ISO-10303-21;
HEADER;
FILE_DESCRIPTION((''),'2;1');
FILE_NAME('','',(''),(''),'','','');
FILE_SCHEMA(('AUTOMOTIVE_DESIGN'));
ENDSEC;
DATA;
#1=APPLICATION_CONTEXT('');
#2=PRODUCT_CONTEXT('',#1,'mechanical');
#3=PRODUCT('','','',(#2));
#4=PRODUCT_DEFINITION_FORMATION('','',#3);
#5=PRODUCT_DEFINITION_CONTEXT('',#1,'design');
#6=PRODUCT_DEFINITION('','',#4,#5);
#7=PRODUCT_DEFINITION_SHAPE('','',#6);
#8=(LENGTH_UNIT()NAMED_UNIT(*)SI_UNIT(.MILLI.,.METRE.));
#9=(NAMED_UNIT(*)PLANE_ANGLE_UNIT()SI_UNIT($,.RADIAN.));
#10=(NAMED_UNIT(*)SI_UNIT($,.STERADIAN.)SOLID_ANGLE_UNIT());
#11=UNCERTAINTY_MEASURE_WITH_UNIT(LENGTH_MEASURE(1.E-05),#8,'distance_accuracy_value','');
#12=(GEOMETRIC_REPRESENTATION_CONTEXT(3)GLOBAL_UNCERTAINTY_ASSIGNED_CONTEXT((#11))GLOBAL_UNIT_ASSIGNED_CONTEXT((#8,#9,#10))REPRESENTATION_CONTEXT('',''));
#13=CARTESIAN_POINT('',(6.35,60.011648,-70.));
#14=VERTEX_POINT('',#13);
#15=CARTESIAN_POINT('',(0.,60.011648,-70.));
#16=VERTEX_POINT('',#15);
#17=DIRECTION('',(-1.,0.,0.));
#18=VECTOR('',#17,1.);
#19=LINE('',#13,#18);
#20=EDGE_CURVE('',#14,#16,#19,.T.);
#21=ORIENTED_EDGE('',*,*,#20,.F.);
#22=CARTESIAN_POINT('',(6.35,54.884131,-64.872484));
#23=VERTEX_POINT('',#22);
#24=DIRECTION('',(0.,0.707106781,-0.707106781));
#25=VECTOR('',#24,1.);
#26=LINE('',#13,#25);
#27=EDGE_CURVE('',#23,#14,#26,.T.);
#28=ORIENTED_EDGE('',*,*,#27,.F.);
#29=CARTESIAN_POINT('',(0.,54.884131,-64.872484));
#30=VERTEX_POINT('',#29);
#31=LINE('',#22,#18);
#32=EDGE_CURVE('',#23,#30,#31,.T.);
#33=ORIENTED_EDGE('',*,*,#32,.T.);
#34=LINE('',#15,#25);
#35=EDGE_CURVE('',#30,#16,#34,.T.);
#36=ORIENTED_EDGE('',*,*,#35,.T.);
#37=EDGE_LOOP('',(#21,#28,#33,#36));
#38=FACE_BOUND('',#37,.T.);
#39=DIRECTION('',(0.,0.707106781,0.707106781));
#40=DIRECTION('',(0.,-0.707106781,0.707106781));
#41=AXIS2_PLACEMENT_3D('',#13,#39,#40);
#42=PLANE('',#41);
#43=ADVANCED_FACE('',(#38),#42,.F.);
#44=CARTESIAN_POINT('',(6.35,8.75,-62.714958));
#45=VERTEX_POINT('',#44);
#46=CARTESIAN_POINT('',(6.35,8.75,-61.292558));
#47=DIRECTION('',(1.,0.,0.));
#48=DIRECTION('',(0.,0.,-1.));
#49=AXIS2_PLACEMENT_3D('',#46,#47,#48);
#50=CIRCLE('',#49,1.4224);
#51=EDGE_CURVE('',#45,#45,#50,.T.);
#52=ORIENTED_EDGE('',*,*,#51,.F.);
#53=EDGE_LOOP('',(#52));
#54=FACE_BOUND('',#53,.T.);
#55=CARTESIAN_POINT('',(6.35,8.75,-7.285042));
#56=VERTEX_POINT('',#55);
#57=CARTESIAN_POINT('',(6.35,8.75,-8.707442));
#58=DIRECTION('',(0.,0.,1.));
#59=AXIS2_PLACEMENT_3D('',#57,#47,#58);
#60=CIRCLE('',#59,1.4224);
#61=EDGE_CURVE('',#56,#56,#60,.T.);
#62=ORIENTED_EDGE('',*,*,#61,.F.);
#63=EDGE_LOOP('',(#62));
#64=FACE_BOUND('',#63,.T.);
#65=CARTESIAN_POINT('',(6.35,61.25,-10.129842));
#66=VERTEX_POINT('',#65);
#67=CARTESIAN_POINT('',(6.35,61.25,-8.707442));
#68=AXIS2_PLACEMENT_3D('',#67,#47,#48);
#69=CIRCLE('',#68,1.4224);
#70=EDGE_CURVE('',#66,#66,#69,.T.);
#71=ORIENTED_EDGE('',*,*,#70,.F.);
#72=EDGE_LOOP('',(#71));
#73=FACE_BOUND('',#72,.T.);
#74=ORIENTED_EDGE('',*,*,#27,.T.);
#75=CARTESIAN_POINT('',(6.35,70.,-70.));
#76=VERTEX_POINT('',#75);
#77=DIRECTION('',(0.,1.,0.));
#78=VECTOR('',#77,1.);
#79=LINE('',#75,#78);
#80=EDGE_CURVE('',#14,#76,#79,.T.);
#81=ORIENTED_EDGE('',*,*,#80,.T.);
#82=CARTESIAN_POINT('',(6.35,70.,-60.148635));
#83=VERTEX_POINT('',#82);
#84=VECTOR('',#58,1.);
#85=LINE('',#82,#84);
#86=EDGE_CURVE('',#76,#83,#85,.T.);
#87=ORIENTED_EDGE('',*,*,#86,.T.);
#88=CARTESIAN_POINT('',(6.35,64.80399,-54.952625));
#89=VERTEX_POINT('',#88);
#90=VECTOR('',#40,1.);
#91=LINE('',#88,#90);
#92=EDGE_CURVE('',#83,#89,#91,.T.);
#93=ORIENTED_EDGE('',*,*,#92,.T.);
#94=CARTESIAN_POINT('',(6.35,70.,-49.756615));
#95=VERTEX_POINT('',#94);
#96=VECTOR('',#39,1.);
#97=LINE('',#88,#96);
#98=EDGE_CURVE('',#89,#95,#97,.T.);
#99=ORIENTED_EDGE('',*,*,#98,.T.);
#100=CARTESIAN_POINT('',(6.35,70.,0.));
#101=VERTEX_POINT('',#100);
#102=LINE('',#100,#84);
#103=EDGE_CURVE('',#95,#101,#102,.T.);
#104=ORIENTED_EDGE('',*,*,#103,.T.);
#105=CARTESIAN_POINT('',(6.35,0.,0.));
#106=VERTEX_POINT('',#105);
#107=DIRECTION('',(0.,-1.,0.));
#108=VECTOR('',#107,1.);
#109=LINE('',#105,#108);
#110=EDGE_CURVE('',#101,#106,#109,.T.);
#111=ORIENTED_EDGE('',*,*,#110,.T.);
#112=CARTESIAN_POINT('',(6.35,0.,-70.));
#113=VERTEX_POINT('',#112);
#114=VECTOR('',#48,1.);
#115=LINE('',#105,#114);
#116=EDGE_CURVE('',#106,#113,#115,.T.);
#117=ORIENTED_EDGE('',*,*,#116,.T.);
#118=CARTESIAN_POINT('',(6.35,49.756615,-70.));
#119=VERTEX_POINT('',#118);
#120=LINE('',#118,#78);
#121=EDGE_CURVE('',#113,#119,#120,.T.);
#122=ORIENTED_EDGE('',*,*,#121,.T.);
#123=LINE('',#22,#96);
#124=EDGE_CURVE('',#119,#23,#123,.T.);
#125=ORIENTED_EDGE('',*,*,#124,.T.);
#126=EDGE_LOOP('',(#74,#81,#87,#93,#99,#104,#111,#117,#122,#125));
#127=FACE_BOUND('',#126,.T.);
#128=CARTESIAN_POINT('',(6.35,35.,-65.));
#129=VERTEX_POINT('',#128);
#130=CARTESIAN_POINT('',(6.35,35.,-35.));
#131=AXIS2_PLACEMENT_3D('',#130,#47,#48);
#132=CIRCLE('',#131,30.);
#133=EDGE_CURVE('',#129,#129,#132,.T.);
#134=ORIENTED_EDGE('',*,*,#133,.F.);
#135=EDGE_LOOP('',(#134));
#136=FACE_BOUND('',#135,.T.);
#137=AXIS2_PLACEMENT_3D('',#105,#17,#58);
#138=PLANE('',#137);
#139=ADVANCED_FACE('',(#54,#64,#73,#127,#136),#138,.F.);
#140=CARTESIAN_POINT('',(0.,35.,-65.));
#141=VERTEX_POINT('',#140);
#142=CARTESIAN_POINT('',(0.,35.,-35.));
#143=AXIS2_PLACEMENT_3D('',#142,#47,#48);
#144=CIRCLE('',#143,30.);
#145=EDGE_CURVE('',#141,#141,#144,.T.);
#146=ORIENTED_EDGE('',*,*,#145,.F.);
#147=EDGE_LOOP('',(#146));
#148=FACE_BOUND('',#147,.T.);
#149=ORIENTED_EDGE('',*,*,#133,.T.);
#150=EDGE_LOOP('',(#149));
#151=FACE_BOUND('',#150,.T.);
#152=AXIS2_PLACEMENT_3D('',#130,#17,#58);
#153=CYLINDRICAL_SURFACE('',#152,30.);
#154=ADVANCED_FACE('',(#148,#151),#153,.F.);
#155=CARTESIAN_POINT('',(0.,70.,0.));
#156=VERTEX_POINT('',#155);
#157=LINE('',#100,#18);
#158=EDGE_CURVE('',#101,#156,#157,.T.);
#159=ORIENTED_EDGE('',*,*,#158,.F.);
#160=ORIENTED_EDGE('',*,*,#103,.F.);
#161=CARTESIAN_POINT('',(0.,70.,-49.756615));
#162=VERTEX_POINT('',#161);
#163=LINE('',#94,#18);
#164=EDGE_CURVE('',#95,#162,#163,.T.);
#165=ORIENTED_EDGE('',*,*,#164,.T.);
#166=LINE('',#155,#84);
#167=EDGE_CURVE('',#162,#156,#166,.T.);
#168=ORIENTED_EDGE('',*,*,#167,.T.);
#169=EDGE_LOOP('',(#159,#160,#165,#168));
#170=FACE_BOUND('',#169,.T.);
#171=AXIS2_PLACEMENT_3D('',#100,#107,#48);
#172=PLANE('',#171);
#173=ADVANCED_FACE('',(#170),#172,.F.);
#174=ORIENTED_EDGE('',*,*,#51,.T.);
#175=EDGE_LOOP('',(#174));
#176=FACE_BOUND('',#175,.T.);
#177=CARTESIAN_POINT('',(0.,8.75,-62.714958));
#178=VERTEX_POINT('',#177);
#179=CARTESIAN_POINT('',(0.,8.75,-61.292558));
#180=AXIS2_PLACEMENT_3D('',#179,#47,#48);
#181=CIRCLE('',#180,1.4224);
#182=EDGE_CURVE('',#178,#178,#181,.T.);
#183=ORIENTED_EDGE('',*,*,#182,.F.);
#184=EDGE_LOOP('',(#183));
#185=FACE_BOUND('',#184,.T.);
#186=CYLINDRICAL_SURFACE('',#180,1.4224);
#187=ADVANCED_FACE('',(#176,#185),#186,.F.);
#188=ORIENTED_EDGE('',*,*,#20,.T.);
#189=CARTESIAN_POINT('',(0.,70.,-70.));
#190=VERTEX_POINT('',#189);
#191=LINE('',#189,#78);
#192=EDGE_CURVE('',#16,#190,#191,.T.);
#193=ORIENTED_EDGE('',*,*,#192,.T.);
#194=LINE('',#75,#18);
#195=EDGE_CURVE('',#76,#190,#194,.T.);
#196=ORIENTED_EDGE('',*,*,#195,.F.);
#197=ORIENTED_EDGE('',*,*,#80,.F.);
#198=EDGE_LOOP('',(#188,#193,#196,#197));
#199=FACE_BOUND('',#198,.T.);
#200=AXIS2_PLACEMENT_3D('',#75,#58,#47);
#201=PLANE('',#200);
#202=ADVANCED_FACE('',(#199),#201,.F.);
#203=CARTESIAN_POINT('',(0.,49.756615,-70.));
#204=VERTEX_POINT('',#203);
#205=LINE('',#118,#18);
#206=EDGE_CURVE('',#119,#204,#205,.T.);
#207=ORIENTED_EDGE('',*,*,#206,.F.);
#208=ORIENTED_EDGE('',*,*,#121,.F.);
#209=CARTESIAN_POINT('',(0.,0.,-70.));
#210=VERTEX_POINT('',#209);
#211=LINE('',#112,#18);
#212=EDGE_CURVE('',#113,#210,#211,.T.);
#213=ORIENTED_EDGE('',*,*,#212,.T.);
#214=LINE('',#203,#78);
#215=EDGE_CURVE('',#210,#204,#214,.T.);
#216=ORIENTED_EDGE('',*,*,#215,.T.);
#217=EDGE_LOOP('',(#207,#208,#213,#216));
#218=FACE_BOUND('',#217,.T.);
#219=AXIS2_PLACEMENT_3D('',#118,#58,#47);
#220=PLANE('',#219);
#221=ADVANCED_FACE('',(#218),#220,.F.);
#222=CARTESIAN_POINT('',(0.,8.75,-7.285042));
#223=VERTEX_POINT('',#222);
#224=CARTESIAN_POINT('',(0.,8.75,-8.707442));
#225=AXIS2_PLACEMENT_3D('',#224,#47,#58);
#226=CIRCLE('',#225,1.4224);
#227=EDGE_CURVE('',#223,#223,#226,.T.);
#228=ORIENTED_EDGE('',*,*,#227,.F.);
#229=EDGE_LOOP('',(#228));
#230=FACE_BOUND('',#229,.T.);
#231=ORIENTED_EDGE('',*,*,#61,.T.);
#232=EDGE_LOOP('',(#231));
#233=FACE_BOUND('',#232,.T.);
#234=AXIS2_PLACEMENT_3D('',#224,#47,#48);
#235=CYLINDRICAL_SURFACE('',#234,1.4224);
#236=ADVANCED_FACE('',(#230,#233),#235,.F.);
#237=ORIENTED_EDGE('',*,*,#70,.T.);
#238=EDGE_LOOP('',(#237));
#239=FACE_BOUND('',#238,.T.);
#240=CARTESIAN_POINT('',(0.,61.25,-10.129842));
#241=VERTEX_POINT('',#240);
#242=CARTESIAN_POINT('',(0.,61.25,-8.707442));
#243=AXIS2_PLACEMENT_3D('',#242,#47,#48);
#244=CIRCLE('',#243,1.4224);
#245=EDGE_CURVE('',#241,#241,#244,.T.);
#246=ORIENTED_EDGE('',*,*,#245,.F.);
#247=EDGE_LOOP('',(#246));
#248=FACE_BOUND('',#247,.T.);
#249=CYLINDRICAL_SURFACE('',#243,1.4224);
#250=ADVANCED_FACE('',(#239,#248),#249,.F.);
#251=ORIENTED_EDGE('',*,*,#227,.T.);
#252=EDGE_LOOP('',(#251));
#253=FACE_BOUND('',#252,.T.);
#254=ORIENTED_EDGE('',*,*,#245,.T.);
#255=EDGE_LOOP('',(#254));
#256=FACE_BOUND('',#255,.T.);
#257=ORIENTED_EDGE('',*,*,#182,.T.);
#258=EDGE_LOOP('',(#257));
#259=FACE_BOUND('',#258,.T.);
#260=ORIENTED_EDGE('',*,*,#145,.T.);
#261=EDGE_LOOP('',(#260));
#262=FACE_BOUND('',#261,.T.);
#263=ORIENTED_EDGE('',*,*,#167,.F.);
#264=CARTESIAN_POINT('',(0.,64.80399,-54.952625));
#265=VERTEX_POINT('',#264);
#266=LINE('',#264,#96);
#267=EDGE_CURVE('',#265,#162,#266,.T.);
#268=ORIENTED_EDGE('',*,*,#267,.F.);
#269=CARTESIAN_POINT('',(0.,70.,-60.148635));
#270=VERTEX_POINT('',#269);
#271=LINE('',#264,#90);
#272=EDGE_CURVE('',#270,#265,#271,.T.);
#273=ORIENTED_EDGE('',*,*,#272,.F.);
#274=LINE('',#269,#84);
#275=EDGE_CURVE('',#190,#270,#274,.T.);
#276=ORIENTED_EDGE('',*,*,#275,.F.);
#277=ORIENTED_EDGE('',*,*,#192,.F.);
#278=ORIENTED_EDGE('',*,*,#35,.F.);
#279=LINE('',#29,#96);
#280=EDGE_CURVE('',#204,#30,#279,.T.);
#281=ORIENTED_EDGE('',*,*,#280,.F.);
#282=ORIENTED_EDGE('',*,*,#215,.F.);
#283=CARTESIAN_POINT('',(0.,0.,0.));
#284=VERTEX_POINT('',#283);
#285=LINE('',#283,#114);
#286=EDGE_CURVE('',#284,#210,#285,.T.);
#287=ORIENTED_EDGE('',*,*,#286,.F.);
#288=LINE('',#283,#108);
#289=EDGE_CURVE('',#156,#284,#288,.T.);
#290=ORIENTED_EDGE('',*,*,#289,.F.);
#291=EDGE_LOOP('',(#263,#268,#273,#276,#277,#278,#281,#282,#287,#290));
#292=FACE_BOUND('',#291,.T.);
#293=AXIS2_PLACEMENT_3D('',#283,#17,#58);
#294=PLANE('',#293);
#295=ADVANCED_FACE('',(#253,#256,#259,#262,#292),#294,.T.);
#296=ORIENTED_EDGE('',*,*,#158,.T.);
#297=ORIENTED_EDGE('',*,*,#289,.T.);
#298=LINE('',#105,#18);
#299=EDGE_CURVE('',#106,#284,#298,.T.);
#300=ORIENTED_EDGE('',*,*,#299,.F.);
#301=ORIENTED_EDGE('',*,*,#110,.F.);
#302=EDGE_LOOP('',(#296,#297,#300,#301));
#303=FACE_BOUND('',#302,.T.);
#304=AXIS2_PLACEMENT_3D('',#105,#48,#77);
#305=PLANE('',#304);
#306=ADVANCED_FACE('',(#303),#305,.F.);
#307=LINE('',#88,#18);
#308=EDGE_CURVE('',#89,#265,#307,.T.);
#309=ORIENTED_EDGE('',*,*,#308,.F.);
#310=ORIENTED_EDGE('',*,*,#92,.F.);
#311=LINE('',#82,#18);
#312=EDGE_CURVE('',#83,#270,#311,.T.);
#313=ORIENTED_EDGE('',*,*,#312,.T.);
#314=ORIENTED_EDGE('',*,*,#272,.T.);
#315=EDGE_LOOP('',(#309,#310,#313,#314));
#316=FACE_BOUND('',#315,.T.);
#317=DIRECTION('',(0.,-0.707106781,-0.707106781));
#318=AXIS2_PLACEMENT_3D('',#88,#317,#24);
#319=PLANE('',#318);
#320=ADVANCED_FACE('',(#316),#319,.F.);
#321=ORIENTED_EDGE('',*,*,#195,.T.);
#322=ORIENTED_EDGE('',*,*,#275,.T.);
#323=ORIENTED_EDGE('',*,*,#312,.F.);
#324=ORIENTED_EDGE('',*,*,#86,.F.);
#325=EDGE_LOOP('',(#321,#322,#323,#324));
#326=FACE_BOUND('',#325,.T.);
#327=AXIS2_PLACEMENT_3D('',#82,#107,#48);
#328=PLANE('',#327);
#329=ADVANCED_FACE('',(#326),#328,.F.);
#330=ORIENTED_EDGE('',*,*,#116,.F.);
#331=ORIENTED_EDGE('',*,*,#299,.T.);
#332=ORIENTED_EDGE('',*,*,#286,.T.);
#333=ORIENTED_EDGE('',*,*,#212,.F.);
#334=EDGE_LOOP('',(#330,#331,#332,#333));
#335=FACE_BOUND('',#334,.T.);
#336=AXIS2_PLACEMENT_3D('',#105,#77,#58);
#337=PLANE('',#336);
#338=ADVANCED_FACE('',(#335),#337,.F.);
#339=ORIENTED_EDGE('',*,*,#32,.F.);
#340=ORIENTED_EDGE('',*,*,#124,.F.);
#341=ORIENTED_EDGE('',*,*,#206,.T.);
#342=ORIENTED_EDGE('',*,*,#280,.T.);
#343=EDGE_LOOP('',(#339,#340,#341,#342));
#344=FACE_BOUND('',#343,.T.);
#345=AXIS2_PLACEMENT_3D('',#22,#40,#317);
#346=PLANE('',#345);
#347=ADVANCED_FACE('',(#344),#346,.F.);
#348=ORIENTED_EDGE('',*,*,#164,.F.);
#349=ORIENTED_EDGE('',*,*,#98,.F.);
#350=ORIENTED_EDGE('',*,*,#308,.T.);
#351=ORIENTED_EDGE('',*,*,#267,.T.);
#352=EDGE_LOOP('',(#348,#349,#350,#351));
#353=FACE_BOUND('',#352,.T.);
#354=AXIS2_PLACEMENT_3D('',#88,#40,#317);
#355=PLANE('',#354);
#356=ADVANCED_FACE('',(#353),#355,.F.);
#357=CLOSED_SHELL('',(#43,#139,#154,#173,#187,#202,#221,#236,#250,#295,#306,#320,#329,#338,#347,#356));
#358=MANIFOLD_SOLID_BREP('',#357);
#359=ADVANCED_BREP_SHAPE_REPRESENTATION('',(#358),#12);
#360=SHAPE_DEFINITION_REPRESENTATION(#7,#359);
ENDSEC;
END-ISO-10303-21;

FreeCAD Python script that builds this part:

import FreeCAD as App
import Part
import Sketcher
Q = App.Units.Quantity


def add_polygon(sketch, points):
    """Adds a closed chain of lines whose ends are joined by coincident constraints."""
    first, n = sketch.GeometryCount, len(points)
    for a, b in zip(points, points[1:] + points[:1]):
        sketch.addGeometry(Part.LineSegment(App.Vector(*a, 0), App.Vector(*b, 0)), False)
    for i in range(n):
        sketch.addConstraint(Sketcher.Constraint("Coincident", first + i, 2, first + (i + 1) % n, 1))

doc = App.newDocument("Part")
params = doc.addObject("Spreadsheet::Sheet", "Params")
for row, (alias, value) in enumerate([
    ("sketch1_diameter", "60 mm"),
    ("sketch1_width", "70 mm"),
    ("pad1_length", "6.35 mm"),
    ("pocket1_length", "6.35 mm"),
], start=1):
    params.set(f"A{row}", alias)
    params.set(f"B{row}", "=" + value)
    params.setAlias(f"B{row}", alias)

body = doc.addObject("PartDesign::Body", "Body")

# Sketch on YZ plane
sketch1 = doc.addObject("Sketcher::SketchObject", "Sketch")
body.addObject(sketch1)
sketch1.AttachmentSupport = (doc.YZ_Plane, [""])
sketch1.MapMode = "FlatFace"
add_polygon(sketch1, [(0, 0), (0, -70), (49.756615, -70), (54.884131, -64.872484), (60.011648, -70), (70, -70), (70, -60.148635), (64.80399, -54.952625), (70, -49.756615), (70, 0)])  # lines 0-9
sketch1.addGeometry(Part.Circle(App.Vector(35, -35, 0), App.Vector(0, 0, 1), 30), False)  # 10
sketch1.addConstraint(Sketcher.Constraint("Vertical", 0))
sketch1.addConstraint(Sketcher.Constraint("Horizontal", 1))
sketch1.addConstraint(Sketcher.Constraint("Horizontal", 4))
sketch1.addConstraint(Sketcher.Constraint("Vertical", 5))
sketch1.addConstraint(Sketcher.Constraint("Vertical", 8))
sketch1.addConstraint(Sketcher.Constraint("Horizontal", 9))
sketch1.addConstraint(Sketcher.Constraint("Coincident", 9, 2, -1, 1))
sketch1.addConstraint(Sketcher.Constraint("Perpendicular", 2, 3))
sketch1.addConstraint(Sketcher.Constraint("Parallel", 3, 6))
sketch1.addConstraint(Sketcher.Constraint("Perpendicular", 6, 7))
sketch1.addConstraint(Sketcher.Constraint("Horizontal", 1, 2, 3, 2))
sketch1.addConstraint(Sketcher.Constraint("Vertical", 5, 2, 7, 2))
sketch1.addConstraint(Sketcher.Constraint("Equal", 9, 0))
sketch1.addConstraint(Sketcher.Constraint("Equal", 1, 8))
sketch1.addConstraint(Sketcher.Constraint("Equal", 2, 3))
sketch1.addConstraint(Sketcher.Constraint("Diameter", 10, Q("60 mm")))
sketch1.addConstraint(Sketcher.Constraint("DistanceX", 9, 2, 9, 1, Q("70 mm")))
sketch1.addConstraint(Sketcher.Constraint("DistanceX", -1, 1, 10, 3, Q("35 mm")))
sketch1.addConstraint(Sketcher.Constraint("DistanceY", 10, 3, -1, 1, Q("35 mm")))
sketch1.addConstraint(Sketcher.Constraint("DistanceX", 1, 1, 1, 2, Q("49.756615 mm")))
sketch1.addConstraint(Sketcher.Constraint("DistanceX", 4, 1, 4, 2, Q("9.988352 mm")))
sketch1.addConstraint(Sketcher.Constraint("DistanceY", 5, 1, 5, 2, Q("9.851365 mm")))
sketch1.setExpression("Constraints[25]", "Params.sketch1_diameter")
sketch1.setExpression("Constraints[26]", "Params.sketch1_width")
pad1 = doc.addObject("PartDesign::Pad", "Pad")
body.addObject(pad1)
pad1.Profile = sketch1
pad1.setExpression("Length", "Params.pad1_length")

# Sketch on YZ plane
sketch2 = doc.addObject("Sketcher::SketchObject", "Sketch001")
body.addObject(sketch2)
sketch2.AttachmentSupport = (doc.YZ_Plane, [""])
sketch2.MapMode = "FlatFace"
sketch2.AttachmentOffset = App.Placement(App.Vector(0, 0, 6.35), App.Rotation())
sketch2.addGeometry(Part.Circle(App.Vector(61.25, -8.707442, 0), App.Vector(0, 0, 1), 1.4224), False)
sketch2.addGeometry(Part.Circle(App.Vector(8.75, -8.707442, 0), App.Vector(0, 0, 1), 1.4224), False)
sketch2.addGeometry(Part.Circle(App.Vector(8.75, -61.292558, 0), App.Vector(0, 0, 1), 1.4224), False)
sketch2.addConstraint(Sketcher.Constraint("Equal", 0, 1))
sketch2.addConstraint(Sketcher.Constraint("Equal", 1, 2))
sketch2.addConstraint(Sketcher.Constraint("Horizontal", 0, 3, 1, 3))
sketch2.addConstraint(Sketcher.Constraint("Vertical", 1, 3, 2, 3))
sketch2.addConstraint(Sketcher.Constraint("Diameter", 0, Q("2.8448 mm")))
sketch2.addConstraint(Sketcher.Constraint("DistanceX", 1, 3, 0, 3, Q("52.5 mm")))
sketch2.addConstraint(Sketcher.Constraint("DistanceX", -1, 1, 0, 3, Q("61.25 mm")))
sketch2.addConstraint(Sketcher.Constraint("DistanceY", 0, 3, -1, 1, Q("8.707442 mm")))
sketch2.addConstraint(Sketcher.Constraint("DistanceY", 2, 3, -1, 1, Q("61.292558 mm")))
pocket1 = doc.addObject("PartDesign::Pocket", "Pocket")
body.addObject(pocket1)
pocket1.Profile = sketch2
pocket1.setExpression("Length", "Params.pocket1_length")

doc.recompute()
